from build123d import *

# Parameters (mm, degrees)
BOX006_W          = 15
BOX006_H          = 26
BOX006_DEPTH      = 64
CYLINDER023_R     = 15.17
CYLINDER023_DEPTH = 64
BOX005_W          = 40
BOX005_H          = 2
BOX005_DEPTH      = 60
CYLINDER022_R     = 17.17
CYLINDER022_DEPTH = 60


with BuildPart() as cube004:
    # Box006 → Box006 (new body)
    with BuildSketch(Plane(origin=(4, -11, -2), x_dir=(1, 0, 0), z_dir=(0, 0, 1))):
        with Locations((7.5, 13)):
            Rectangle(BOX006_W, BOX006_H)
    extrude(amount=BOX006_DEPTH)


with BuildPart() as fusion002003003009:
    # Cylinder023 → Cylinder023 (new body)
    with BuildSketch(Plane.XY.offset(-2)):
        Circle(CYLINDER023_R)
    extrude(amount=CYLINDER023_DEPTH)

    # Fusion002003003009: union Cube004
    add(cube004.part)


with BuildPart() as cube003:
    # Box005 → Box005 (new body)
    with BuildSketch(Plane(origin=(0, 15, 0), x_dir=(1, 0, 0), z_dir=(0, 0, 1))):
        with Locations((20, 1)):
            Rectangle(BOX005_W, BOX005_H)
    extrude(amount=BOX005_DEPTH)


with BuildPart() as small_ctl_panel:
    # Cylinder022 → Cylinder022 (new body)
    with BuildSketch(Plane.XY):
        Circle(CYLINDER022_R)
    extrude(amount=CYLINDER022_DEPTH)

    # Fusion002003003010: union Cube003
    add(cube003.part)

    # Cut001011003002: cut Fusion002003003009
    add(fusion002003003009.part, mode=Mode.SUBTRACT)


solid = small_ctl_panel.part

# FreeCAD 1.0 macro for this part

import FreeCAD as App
import Part
import Sketcher


def add_polygon(sketch, points):
    """Adds a closed chain of lines whose ends are joined by coincident constraints."""
    first, n = sketch.GeometryCount, len(points)
    for a, b in zip(points, points[1:] + points[:1]):
        sketch.addGeometry(Part.LineSegment(App.Vector(*a, 0), App.Vector(*b, 0)), False)
    for i in range(n):
        sketch.addConstraint(Sketcher.Constraint("Coincident", first + i, 2, first + (i + 1) % n, 1))

doc = App.newDocument("Part")
body = doc.addObject("PartDesign::Body", "Body")

sketch1 = body.newObject("Sketcher::SketchObject", "Sketch")
sketch1.AttachmentSupport = (doc.getObject("XY_Plane"), [""])
sketch1.MapMode = "FlatFace"
sketch1.AttachmentOffset = App.Placement(App.Vector(0, 0, -2), App.Rotation())
add_polygon(sketch1, [(4, 15), (4, -11), (19, -11), (19, 15)])
sketch1.addConstraint(Sketcher.Constraint("Vertical", 0))
sketch1.addConstraint(Sketcher.Constraint("Horizontal", 1))
sketch1.addConstraint(Sketcher.Constraint("Vertical", 2))
sketch1.addConstraint(Sketcher.Constraint("Horizontal", 3))
sketch1.addConstraint(Sketcher.Constraint("DistanceX", 1, 1, 1, 2, 15.0))
sketch1.addConstraint(Sketcher.Constraint("DistanceY", 0, 2, 0, 1, 26.0))
sketch1.addConstraint(Sketcher.Constraint("DistanceX", -1, 1, 0, 2, 4.0))
sketch1.addConstraint(Sketcher.Constraint("DistanceY", 0, 2, -1, 1, 11.0))
pad1 = body.newObject("PartDesign::Pad", "Pad")
pad1.Profile = sketch1
pad1.Length = 64
body2 = doc.addObject("PartDesign::Body", "Body001")

sketch2 = body2.newObject("Sketcher::SketchObject", "Sketch001")
sketch2.AttachmentSupport = (doc.getObject("XY_Plane001"), [""])
sketch2.MapMode = "FlatFace"
sketch2.AttachmentOffset = App.Placement(App.Vector(0, 0, -2), App.Rotation())
sketch2.addGeometry(Part.Circle(App.Vector(0, 0, 0), App.Vector(0, 0, 1), 15), False)
sketch2.addConstraint(Sketcher.Constraint("Coincident", 0, 3, -1, 1))
sketch2.addConstraint(Sketcher.Constraint("Diameter", 0, 30.34))
pad2 = body2.newObject("PartDesign::Pad", "Pad001")
pad2.Profile = sketch2
pad2.Length = 64
doc.recompute()

boolean = body2.newObject("PartDesign::Boolean", "Boolean")
boolean.Type = "Fuse"
boolean.addObjects([body])
body3 = doc.addObject("PartDesign::Body", "Body002")

sketch3 = body3.newObject("Sketcher::SketchObject", "Sketch002")
sketch3.AttachmentSupport = (doc.getObject("XY_Plane002"), [""])
sketch3.MapMode = "FlatFace"
add_polygon(sketch3, [(0, 17), (0, 15), (40, 15), (40, 17)])
sketch3.addConstraint(Sketcher.Constraint("Vertical", 0))
sketch3.addConstraint(Sketcher.Constraint("Horizontal", 1))
sketch3.addConstraint(Sketcher.Constraint("Vertical", 2))
sketch3.addConstraint(Sketcher.Constraint("Horizontal", 3))
sketch3.addConstraint(Sketcher.Constraint("PointOnObject", 0, 2, -2))
sketch3.addConstraint(Sketcher.Constraint("DistanceX", 1, 1, 1, 2, 40.0))
sketch3.addConstraint(Sketcher.Constraint("DistanceY", 0, 2, 0, 1, 2.0))
sketch3.addConstraint(Sketcher.Constraint("DistanceY", -1, 1, 0, 2, 15.0))
pad3 = body3.newObject("PartDesign::Pad", "Pad002")
pad3.Profile = sketch3
pad3.Length = 60
body4 = doc.addObject("PartDesign::Body", "Body003")

sketch4 = body4.newObject("Sketcher::SketchObject", "Sketch003")
sketch4.AttachmentSupport = (doc.getObject("XY_Plane003"), [""])
sketch4.MapMode = "FlatFace"
sketch4.addGeometry(Part.Circle(App.Vector(0, 0, 0), App.Vector(0, 0, 1), 17), False)
sketch4.addConstraint(Sketcher.Constraint("Coincident", 0, 3, -1, 1))
sketch4.addConstraint(Sketcher.Constraint("Diameter", 0, 34.34))
pad4 = body4.newObject("PartDesign::Pad", "Pad003")
pad4.Profile = sketch4
pad4.Length = 60
doc.recompute()

boolean2 = body4.newObject("PartDesign::Boolean", "Boolean001")
boolean2.Type = "Fuse"
boolean2.addObjects([body3])
doc.recompute()

boolean3 = body4.newObject("PartDesign::Boolean", "Boolean002")
boolean3.Type = "Cut"
boolean3.addObjects([body2])

doc.recompute()
